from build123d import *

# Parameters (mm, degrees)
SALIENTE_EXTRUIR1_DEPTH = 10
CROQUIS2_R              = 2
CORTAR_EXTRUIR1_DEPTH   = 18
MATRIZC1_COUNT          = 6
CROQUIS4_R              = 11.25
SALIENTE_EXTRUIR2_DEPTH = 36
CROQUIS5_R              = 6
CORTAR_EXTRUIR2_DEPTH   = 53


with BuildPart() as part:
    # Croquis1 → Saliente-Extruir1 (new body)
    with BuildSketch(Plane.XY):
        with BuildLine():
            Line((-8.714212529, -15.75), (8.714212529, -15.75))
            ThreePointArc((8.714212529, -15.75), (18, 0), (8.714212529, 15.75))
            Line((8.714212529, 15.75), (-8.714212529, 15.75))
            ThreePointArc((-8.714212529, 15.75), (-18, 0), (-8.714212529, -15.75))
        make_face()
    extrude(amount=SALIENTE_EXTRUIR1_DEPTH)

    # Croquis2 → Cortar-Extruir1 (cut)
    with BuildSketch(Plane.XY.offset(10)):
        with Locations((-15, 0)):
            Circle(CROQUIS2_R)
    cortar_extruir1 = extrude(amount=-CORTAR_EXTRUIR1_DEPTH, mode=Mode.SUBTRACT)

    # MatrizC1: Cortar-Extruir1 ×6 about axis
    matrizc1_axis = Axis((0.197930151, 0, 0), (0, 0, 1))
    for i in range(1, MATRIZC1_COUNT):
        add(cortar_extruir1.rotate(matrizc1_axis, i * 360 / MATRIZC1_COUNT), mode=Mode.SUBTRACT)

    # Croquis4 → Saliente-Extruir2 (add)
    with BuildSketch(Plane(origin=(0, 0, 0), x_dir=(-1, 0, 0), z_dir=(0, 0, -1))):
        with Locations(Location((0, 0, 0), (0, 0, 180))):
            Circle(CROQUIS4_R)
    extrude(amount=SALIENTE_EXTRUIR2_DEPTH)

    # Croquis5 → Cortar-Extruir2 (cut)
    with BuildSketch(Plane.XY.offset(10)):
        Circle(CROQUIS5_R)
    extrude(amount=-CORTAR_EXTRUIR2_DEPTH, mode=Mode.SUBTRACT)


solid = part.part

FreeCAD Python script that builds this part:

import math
import FreeCAD as App
import Part
import Sketcher
Q = App.Units.Quantity

doc = App.newDocument("Part")
params = doc.addObject("Spreadsheet::Sheet", "Params")
for row, (alias, value) in enumerate([
    ("sketch1_radius", "18 mm"),
    ("pad1_length", "10 mm"),
    ("sketch2_diameter", "4 mm"),
    ("pocket1_length", "18 mm"),
    ("sketch3_diameter", "22.5 mm"),
    ("pad2_length", "36 mm"),
    ("sketch4_diameter", "12 mm"),
    ("pocket2_length", "53 mm"),
], start=1):
    params.set(f"A{row}", alias)
    params.set(f"B{row}", "=" + value)
    params.setAlias(f"B{row}", alias)

body = doc.addObject("PartDesign::Body", "Body")

sketch1 = doc.addObject("Sketcher::SketchObject", "Sketch")
body.addObject(sketch1)
sketch1.AttachmentSupport = (doc.XY_Plane, [""])
sketch1.MapMode = "FlatFace"
sketch1.addGeometry([
    Part.LineSegment(App.Vector(-9, -16, 0), App.Vector(9, -16, 0)),
    Part.ArcOfCircle(Part.Circle(App.Vector(0, 0, 0), App.Vector(0, 0, 1), 18), math.radians(-61), math.radians(61)),
    Part.LineSegment(App.Vector(9, 16, 0), App.Vector(-9, 16, 0)),
    Part.ArcOfCircle(Part.Circle(App.Vector(0, 0, 0), App.Vector(0, 0, 1), 18), math.radians(119), math.radians(241)),
], False)
sketch1.addConstraint([
    Sketcher.Constraint("Coincident", 0, 2, 1, 1),
    Sketcher.Constraint("Coincident", 1, 2, 2, 1),
    Sketcher.Constraint("Coincident", 2, 2, 3, 1),
    Sketcher.Constraint("Coincident", 3, 2, 0, 1),
    Sketcher.Constraint("Horizontal", 0),
    Sketcher.Constraint("Horizontal", 2),
    Sketcher.Constraint("Coincident", 1, 3, -1, 1),
    Sketcher.Constraint("Coincident", 3, 3, -1, 1),
    Sketcher.Constraint("Equal", 1, 3),
    Sketcher.Constraint("Vertical", 0, 2, 1, 2),
    Sketcher.Constraint("Radius", 1, Q("18 mm")),
    Sketcher.Constraint("DistanceY", 0, 2, 1, 2, Q("31.5 mm")),
])
sketch1.setExpression("Constraints[10]", "Params.sketch1_radius")
pad1 = doc.addObject("PartDesign::Pad", "Pad")
body.addObject(pad1)
pad1.Profile = sketch1
pad1.setExpression("Length", "Params.pad1_length")

sketch2 = doc.addObject("Sketcher::SketchObject", "Sketch001")
body.addObject(sketch2)
sketch2.AttachmentSupport = (doc.XY_Plane, [""])
sketch2.MapMode = "FlatFace"
sketch2.AttachmentOffset = App.Placement(App.Vector(0, 0, 10), App.Rotation())
sketch2.addGeometry(Part.Circle(App.Vector(-15, 0, 0), App.Vector(0, 0, 1), 2), False)
sketch2.addConstraint([
    Sketcher.Constraint("PointOnObject", 0, 3, -1),
    Sketcher.Constraint("Diameter", 0, Q("4 mm")),
    Sketcher.Constraint("DistanceX", 0, 3, -1, 1, Q("15 mm")),
])
sketch2.setExpression("Constraints[1]", "Params.sketch2_diameter")
pocket1 = doc.addObject("PartDesign::Pocket", "Pocket")
body.addObject(pocket1)
pocket1.Profile = sketch2
pocket1.setExpression("Length", "Params.pocket1_length")
doc.recompute()

datumline = doc.addObject("PartDesign::Line", "DatumLine")
body.addObject(datumline)
datumline.Placement = App.Placement(App.Vector(0.19793, 0, 0), App.Rotation(App.Vector(0, 0, 1), App.Vector(0, 0, 1)))
polarpattern = doc.addObject("PartDesign::PolarPattern", "PolarPattern")
body.addObject(polarpattern)
polarpattern.Originals = [pocket1]
polarpattern.Axis = (datumline, [""])
polarpattern.Angle = 360
polarpattern.Occurrences = 6
body.Tip = polarpattern

sketch3 = doc.addObject("Sketcher::SketchObject", "Sketch002")
body.addObject(sketch3)
sketch3.AttachmentSupport = (doc.XY_Plane, [""])
sketch3.MapMode = "FlatFace"
sketch3.addGeometry(Part.Circle(App.Vector(0, 0, 0), App.Vector(0, 0, 1), 11), False)
sketch3.addConstraint([
    Sketcher.Constraint("Coincident", 0, 3, -1, 1),
    Sketcher.Constraint("Diameter", 0, Q("22.5 mm")),
])
sketch3.setExpression("Constraints[1]", "Params.sketch3_diameter")
pad2 = doc.addObject("PartDesign::Pad", "Pad001")
body.addObject(pad2)
pad2.Profile = sketch3
pad2.setExpression("Length", "Params.pad2_length")
pad2.Reversed = True

sketch4 = doc.addObject("Sketcher::SketchObject", "Sketch003")
body.addObject(sketch4)
sketch4.AttachmentSupport = (doc.XY_Plane, [""])
sketch4.MapMode = "FlatFace"
sketch4.AttachmentOffset = App.Placement(App.Vector(0, 0, 10), App.Rotation())
sketch4.addGeometry(Part.Circle(App.Vector(0, 0, 0), App.Vector(0, 0, 1), 6), False)
sketch4.addConstraint([
    Sketcher.Constraint("Coincident", 0, 3, -1, 1),
    Sketcher.Constraint("Diameter", 0, Q("12 mm")),
])
sketch4.setExpression("Constraints[1]", "Params.sketch4_diameter")
pocket2 = doc.addObject("PartDesign::Pocket", "Pocket001")
body.addObject(pocket2)
pocket2.Profile = sketch4
pocket2.setExpression("Length", "Params.pocket2_length")

doc.recompute()
